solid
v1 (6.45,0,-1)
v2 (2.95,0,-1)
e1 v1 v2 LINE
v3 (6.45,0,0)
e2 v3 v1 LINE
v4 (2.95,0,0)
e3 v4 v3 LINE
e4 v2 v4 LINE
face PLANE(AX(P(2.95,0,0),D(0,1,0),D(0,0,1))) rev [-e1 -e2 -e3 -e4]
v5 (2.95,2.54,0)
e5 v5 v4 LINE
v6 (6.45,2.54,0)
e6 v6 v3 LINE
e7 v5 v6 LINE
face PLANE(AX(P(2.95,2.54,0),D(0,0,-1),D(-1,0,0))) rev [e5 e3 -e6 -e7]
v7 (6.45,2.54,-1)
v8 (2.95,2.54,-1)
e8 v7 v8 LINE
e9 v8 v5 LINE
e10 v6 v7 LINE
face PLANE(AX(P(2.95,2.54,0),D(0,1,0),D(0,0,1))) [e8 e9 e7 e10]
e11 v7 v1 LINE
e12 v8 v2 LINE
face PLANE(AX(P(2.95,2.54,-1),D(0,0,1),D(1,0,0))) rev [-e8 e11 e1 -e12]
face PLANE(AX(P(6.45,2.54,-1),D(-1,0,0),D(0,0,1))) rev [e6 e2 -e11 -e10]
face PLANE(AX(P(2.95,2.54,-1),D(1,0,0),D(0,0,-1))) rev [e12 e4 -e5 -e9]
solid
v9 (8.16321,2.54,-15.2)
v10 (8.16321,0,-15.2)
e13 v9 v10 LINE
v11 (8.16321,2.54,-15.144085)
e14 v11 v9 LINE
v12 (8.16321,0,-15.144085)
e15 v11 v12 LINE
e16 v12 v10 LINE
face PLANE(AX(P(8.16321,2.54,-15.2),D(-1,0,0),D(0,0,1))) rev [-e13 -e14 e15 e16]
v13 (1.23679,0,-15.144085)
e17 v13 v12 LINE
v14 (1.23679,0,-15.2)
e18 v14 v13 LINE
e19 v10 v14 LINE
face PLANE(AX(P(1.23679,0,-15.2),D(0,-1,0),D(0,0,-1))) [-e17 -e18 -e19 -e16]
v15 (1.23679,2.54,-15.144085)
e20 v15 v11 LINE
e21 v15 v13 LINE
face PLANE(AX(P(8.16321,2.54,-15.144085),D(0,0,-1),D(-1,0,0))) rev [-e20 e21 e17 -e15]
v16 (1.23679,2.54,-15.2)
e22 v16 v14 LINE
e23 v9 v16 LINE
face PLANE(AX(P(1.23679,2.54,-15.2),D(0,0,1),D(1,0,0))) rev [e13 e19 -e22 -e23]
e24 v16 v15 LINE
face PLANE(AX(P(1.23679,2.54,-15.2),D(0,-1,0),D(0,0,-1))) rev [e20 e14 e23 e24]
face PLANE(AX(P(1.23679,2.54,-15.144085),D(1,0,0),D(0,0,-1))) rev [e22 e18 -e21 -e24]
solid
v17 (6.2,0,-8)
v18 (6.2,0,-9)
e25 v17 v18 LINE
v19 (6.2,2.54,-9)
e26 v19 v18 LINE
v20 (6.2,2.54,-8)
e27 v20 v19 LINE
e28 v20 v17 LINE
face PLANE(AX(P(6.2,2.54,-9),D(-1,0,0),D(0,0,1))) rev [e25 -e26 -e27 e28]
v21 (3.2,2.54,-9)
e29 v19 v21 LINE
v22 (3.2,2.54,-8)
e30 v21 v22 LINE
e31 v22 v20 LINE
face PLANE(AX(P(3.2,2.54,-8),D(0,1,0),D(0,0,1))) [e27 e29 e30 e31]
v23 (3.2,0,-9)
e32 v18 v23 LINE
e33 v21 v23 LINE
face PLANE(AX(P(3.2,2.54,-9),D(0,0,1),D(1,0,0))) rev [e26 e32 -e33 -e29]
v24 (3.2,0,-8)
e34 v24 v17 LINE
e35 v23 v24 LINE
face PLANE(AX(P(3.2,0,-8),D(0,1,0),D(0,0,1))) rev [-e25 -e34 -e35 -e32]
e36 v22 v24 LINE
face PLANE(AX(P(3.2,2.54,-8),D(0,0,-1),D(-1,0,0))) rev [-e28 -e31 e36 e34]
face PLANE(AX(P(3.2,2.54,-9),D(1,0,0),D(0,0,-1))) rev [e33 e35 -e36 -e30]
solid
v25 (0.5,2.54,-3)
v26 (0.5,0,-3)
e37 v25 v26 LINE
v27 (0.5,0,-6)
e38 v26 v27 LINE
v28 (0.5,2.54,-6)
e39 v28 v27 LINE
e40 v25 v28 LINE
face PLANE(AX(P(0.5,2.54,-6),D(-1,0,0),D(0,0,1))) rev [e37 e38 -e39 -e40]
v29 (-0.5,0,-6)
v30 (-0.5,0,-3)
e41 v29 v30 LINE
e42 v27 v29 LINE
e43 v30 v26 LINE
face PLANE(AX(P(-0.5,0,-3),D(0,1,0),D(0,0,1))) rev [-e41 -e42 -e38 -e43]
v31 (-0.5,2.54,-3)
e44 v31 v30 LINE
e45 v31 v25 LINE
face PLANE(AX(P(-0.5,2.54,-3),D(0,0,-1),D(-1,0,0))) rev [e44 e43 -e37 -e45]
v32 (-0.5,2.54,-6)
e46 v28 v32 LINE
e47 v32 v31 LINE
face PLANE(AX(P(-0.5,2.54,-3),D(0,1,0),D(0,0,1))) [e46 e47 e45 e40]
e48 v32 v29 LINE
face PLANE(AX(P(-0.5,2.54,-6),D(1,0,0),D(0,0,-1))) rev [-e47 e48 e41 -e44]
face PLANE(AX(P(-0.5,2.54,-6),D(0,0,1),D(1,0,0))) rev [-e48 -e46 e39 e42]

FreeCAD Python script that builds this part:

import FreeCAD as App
import Part
import Sketcher
from FreeCAD import Vector

doc = App.newDocument("Part")
body = doc.addObject("PartDesign::Body", "Body")

sketch1 = body.newObject("Sketcher::SketchObject", "Sketch")
sketch1.AttachmentSupport = (doc.getObject("XZ_Plane"), [""])
sketch1.MapMode = "FlatFace"
sketch1.addGeometry([
    Part.LineSegment(Vector(3, -1, 0), Vector(3, 0, 0)),
    Part.LineSegment(Vector(3, 0, 0), Vector(6.5, 0, 0)),
    Part.LineSegment(Vector(6.5, 0, 0), Vector(6.5, -1, 0)),
    Part.LineSegment(Vector(6.5, -1, 0), Vector(3, -1, 0)),
], False)
sketch1.addConstraint([
    Sketcher.Constraint("Coincident", 0, 2, 1, 1),
    Sketcher.Constraint("Coincident", 1, 2, 2, 1),
    Sketcher.Constraint("Coincident", 2, 2, 3, 1),
    Sketcher.Constraint("Coincident", 3, 2, 0, 1),
    Sketcher.Constraint("Vertical", 0),
    Sketcher.Constraint("Horizontal", 1),
    Sketcher.Constraint("Vertical", 2),
    Sketcher.Constraint("Horizontal", 3),
    Sketcher.Constraint("PointOnObject", 0, 2, -1),
    Sketcher.Constraint("DistanceY", 0, 1, 0, 2, 1.0),
    Sketcher.Constraint("DistanceX", 1, 1, 1, 2, 3.5),
    Sketcher.Constraint("DistanceX", -1, 1, 0, 2, 2.95),
])
pad1 = body.newObject("PartDesign::Pad", "Pad")
pad1.Profile = sketch1
pad1.Length = 2.54
pad1.Reversed = True
body2 = doc.addObject("PartDesign::Body", "Body001")

sketch2 = body2.newObject("Sketcher::SketchObject", "Sketch001")
sketch2.AttachmentSupport = (doc.getObject("XZ_Plane001"), [""])
sketch2.MapMode = "FlatFace"
sketch2.addGeometry([
    Part.LineSegment(Vector(-0.5, -6, 0), Vector(-0.5, -3, 0)),
    Part.LineSegment(Vector(-0.5, -3, 0), Vector(0.5, -3, 0)),
    Part.LineSegment(Vector(0.5, -3, 0), Vector(0.5, -6, 0)),
    Part.LineSegment(Vector(0.5, -6, 0), Vector(-0.5, -6, 0)),
], False)
sketch2.addConstraint([
    Sketcher.Constraint("Coincident", 0, 2, 1, 1),
    Sketcher.Constraint("Coincident", 1, 2, 2, 1),
    Sketcher.Constraint("Coincident", 2, 2, 3, 1),
    Sketcher.Constraint("Coincident", 3, 2, 0, 1),
    Sketcher.Constraint("Vertical", 0),
    Sketcher.Constraint("Horizontal", 1),
    Sketcher.Constraint("Vertical", 2),
    Sketcher.Constraint("Horizontal", 3),
    Sketcher.Constraint("DistanceX", 1, 1, 1, 2, 1.0),
    Sketcher.Constraint("DistanceY", 0, 1, 0, 2, 3.0),
    Sketcher.Constraint("DistanceY", 0, 2, -1, 1, 3.0),
    Sketcher.Constraint("DistanceX", 0, 2, -1, 1, 0.5),
])
pad2 = body2.newObject("PartDesign::Pad", "Pad001")
pad2.Profile = sketch2
pad2.Length = 2.54
pad2.Reversed = True
body3 = doc.addObject("PartDesign::Body", "Body002")

sketch3 = body3.newObject("Sketcher::SketchObject", "Sketch002")
sketch3.AttachmentSupport = (doc.getObject("XZ_Plane002"), [""])
sketch3.MapMode = "FlatFace"
sketch3.addGeometry([
    Part.LineSegment(Vector(3.2, -9, 0), Vector(3.2, -8, 0)),
    Part.LineSegment(Vector(3.2, -8, 0), Vector(6.2, -8, 0)),
    Part.LineSegment(Vector(6.2, -8, 0), Vector(6.2, -9, 0)),
    Part.LineSegment(Vector(6.2, -9, 0), Vector(3.2, -9, 0)),
], False)
sketch3.addConstraint([
    Sketcher.Constraint("Coincident", 0, 2, 1, 1),
    Sketcher.Constraint("Coincident", 1, 2, 2, 1),
    Sketcher.Constraint("Coincident", 2, 2, 3, 1),
    Sketcher.Constraint("Coincident", 3, 2, 0, 1),
    Sketcher.Constraint("Vertical", 0),
    Sketcher.Constraint("Horizontal", 1),
    Sketcher.Constraint("Vertical", 2),
    Sketcher.Constraint("Horizontal", 3),
    Sketcher.Constraint("DistanceX", 1, 1, 1, 2, 3.0),
    Sketcher.Constraint("DistanceY", 0, 1, 0, 2, 1.0),
    Sketcher.Constraint("DistanceY", 0, 2, -1, 1, 8.0),
    Sketcher.Constraint("DistanceX", -1, 1, 0, 2, 3.2),
])
pad3 = body3.newObject("PartDesign::Pad", "Pad002")
pad3.Profile = sketch3
pad3.Length = 2.54
pad3.Reversed = True
body4 = doc.addObject("PartDesign::Body", "Body003")

sketch4 = body4.newObject("Sketcher::SketchObject", "Sketch003")
sketch4.AttachmentSupport = (doc.getObject("XZ_Plane003"), [""])
sketch4.MapMode = "FlatFace"
sketch4.addGeometry([
    Part.LineSegment(Vector(1.24, -15.2, 0), Vector(1.24, -15.14, 0)),
    Part.LineSegment(Vector(1.24, -15.14, 0), Vector(8.16, -15.14, 0)),
    Part.LineSegment(Vector(8.16, -15.14, 0), Vector(8.16, -15.2, 0)),
    Part.LineSegment(Vector(8.16, -15.2, 0), Vector(1.24, -15.2, 0)),
], False)
sketch4.addConstraint([
    Sketcher.Constraint("Coincident", 0, 2, 1, 1),
    Sketcher.Constraint("Coincident", 1, 2, 2, 1),
    Sketcher.Constraint("Coincident", 2, 2, 3, 1),
    Sketcher.Constraint("Coincident", 3, 2, 0, 1),
    Sketcher.Constraint("Vertical", 0),
    Sketcher.Constraint("Horizontal", 1),
    Sketcher.Constraint("Vertical", 2),
    Sketcher.Constraint("Horizontal", 3),
    Sketcher.Constraint("DistanceY", 2, 2, -1, 1, 15.2),
    Sketcher.Constraint("DistanceX", 1, 1, 1, 2, 6.926419),
    Sketcher.Constraint("DistanceY", 0, 1, 0, 2, 0.055915),
    Sketcher.Constraint("DistanceX", -1, 1, 0, 2, 1.23679),
])
pad4 = body4.newObject("PartDesign::Pad", "Pad003")
pad4.Profile = sketch4
pad4.Length = 2.54
pad4.Reversed = True

doc.recompute()
